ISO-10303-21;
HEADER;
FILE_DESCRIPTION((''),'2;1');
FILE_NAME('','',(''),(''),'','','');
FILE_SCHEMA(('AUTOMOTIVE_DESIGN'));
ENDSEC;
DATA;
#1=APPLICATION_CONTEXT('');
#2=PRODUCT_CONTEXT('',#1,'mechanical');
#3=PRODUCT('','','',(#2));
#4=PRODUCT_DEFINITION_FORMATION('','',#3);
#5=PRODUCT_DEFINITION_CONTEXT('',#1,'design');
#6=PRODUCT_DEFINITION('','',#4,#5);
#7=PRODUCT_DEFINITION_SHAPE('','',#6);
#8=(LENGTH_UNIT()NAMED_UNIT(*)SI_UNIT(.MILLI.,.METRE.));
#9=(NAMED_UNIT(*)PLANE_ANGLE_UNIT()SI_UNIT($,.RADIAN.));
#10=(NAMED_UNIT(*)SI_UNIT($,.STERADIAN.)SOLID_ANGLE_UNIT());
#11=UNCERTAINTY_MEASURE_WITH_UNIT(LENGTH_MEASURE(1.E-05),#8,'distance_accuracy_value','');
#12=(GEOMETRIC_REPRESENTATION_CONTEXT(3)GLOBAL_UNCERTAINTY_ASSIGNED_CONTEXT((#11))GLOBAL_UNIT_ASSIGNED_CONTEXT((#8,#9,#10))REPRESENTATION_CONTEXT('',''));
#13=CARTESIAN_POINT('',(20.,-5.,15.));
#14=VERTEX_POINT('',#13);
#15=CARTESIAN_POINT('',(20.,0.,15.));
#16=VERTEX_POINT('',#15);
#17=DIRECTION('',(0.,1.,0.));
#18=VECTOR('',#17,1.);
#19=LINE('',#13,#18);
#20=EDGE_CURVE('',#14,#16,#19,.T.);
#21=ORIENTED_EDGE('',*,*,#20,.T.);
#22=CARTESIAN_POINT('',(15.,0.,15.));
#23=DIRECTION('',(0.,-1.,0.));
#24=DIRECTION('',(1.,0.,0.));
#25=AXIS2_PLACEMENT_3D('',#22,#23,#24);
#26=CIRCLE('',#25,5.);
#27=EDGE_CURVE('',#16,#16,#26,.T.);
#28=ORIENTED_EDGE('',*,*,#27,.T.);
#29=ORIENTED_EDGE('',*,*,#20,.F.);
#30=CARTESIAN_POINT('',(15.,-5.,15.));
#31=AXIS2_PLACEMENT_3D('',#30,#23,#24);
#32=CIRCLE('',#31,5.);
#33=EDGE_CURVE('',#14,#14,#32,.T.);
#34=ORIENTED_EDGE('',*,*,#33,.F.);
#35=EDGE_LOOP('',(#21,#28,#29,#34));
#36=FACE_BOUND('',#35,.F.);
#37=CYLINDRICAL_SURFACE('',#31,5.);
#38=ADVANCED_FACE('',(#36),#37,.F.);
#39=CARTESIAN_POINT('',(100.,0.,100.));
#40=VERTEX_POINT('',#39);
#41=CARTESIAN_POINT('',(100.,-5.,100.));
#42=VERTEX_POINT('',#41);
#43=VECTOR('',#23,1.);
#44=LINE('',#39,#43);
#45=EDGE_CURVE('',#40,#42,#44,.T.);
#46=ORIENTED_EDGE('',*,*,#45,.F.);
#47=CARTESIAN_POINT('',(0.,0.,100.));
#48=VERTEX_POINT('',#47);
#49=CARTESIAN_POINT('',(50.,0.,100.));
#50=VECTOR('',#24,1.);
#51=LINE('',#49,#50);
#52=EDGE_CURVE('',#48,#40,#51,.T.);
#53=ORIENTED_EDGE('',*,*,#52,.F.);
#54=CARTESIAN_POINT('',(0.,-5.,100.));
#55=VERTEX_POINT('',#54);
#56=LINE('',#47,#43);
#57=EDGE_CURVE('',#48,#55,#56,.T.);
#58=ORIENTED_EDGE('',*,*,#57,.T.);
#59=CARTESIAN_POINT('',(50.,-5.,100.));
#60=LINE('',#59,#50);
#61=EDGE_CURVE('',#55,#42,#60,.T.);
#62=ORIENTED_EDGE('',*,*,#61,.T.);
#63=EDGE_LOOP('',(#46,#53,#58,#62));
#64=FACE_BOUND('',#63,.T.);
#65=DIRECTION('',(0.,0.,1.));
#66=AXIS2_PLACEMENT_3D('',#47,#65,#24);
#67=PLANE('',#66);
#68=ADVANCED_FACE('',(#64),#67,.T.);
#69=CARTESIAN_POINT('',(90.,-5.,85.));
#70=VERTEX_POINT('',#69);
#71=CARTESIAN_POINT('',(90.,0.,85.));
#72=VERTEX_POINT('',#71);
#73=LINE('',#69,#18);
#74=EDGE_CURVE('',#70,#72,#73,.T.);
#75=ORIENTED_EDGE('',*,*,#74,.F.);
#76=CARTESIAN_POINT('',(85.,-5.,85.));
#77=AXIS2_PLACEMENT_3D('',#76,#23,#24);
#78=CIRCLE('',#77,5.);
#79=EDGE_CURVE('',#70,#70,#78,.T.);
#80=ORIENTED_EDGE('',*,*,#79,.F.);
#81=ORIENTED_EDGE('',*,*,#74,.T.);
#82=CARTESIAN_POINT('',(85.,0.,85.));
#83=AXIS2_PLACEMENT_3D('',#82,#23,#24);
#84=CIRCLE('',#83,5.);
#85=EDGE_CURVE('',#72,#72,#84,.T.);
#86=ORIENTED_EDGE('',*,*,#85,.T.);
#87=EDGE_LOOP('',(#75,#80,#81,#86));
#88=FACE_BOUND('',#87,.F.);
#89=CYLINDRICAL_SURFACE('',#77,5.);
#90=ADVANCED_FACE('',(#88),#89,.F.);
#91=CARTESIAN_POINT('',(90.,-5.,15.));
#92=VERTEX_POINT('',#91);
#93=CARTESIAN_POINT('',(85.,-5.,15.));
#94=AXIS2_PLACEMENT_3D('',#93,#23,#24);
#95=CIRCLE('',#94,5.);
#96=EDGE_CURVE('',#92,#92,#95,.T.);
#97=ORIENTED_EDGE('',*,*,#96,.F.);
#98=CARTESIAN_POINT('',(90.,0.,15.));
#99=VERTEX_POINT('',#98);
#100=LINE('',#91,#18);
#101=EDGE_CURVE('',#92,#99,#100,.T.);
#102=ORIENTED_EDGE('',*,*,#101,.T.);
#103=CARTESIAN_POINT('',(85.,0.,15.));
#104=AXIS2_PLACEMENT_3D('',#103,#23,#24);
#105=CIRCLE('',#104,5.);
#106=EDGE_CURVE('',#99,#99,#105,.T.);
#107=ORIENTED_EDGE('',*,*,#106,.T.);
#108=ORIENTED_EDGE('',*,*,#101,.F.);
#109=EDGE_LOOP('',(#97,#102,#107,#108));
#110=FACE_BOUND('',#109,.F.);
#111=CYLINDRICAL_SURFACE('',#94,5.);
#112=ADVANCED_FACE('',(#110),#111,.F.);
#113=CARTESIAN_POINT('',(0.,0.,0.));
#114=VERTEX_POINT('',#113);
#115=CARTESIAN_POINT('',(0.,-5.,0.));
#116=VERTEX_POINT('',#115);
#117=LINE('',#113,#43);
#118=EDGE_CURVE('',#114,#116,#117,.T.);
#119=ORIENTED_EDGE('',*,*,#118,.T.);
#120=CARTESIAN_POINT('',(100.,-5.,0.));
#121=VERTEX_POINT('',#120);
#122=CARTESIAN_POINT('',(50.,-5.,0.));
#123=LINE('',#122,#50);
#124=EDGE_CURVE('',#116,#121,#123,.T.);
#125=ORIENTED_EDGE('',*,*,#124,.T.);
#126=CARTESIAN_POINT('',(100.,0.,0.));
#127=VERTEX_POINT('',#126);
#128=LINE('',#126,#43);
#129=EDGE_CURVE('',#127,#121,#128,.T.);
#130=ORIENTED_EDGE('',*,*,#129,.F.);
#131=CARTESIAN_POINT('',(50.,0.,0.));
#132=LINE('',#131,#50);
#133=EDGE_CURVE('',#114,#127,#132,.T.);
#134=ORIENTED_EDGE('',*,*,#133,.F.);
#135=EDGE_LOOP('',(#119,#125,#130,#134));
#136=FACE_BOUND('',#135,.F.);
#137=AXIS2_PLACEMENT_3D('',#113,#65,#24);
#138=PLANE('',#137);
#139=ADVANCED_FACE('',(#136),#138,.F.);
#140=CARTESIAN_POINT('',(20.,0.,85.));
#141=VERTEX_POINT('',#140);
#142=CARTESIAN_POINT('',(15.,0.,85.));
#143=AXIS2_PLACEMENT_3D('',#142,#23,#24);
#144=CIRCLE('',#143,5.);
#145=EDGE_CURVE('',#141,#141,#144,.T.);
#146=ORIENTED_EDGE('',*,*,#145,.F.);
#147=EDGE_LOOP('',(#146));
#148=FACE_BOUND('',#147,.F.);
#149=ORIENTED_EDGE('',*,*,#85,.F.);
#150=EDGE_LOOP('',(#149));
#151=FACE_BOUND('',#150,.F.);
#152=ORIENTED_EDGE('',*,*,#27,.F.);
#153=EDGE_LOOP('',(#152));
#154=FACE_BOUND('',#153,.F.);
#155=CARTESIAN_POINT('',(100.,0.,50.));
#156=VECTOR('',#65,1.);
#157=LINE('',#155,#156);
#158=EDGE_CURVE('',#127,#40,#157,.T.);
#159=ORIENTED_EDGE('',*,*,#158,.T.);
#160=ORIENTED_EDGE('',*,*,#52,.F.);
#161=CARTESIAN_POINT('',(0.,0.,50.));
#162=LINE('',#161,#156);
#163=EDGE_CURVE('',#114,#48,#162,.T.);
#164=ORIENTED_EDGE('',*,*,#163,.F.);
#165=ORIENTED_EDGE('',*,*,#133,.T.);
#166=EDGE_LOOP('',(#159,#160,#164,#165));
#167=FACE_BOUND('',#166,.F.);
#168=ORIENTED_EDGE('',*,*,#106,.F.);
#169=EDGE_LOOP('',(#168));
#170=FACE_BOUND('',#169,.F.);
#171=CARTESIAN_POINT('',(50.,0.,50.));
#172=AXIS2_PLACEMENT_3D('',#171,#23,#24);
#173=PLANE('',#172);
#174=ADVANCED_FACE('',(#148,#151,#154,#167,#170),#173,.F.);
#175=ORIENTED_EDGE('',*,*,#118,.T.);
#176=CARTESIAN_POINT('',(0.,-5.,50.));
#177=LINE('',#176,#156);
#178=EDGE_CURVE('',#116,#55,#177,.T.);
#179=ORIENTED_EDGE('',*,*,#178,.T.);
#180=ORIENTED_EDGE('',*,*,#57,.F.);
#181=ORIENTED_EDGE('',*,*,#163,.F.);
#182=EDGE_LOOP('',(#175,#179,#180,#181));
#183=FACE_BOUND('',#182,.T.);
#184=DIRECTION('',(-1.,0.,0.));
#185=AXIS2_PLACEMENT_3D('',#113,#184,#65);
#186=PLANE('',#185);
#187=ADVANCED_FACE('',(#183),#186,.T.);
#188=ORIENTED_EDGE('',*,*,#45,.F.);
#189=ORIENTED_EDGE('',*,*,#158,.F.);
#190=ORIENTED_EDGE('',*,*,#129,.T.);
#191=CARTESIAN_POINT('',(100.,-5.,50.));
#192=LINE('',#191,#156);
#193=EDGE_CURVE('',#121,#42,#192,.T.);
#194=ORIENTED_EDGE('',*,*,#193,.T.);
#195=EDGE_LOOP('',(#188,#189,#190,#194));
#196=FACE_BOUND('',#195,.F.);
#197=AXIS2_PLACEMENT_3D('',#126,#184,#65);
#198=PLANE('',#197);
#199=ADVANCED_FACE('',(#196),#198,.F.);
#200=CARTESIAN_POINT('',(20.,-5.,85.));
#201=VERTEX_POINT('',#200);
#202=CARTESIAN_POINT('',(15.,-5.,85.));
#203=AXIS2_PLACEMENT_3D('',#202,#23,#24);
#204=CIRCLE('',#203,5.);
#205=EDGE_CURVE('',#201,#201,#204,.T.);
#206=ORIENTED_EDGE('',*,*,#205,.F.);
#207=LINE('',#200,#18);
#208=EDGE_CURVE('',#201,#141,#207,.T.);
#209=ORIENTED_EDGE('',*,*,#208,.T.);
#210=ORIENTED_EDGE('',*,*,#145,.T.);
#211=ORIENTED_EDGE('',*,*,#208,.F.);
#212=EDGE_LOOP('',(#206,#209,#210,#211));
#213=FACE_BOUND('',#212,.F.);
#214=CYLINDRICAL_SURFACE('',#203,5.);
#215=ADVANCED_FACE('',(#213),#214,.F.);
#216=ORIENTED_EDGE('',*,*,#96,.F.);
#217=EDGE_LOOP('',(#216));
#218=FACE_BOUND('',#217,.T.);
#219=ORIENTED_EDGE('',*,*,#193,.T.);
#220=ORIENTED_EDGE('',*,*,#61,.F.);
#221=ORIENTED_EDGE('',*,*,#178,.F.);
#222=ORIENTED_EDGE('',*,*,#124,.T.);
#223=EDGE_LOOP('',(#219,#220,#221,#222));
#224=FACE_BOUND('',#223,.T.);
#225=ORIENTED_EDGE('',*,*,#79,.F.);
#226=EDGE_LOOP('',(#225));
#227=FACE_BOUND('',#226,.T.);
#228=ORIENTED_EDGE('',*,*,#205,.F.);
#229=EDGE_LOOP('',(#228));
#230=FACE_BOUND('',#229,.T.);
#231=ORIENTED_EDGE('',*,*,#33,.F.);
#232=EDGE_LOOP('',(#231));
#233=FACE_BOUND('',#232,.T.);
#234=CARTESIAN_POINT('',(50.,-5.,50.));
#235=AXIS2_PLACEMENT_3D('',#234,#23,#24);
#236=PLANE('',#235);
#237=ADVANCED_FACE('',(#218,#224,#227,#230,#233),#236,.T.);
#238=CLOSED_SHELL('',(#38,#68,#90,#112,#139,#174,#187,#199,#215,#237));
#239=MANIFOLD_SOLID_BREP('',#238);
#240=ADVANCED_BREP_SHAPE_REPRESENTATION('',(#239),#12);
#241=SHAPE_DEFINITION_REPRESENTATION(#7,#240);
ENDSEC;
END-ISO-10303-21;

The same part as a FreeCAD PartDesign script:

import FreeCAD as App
import Part
import Sketcher

V = App.Vector
Q = App.Units.Quantity

doc = App.newDocument("Part")
params = doc.addObject("Spreadsheet::Sheet", "Params")
for row, (alias, value) in enumerate([
    ("sketch1_width", "100 mm"),
    ("pad1_length", "5 mm"),
    ("sketch2_diameter", "10 mm"),
], start=1):
    params.set(f"A{row}", alias)
    params.set(f"B{row}", "=" + value)
    params.setAlias(f"B{row}", alias)

body = doc.addObject("PartDesign::Body", "Body")

# Sketch on XZ plane
sketch1 = body.newObject("Sketcher::SketchObject", "Sketch")
sketch1.AttachmentSupport = (doc.getObject("XZ_Plane"), [""])
sketch1.MapMode = "FlatFace"
sketch1.addGeometry(Part.LineSegment(V(0, 100, 0), V(0, 0, 0)), False)
sketch1.addGeometry(Part.LineSegment(V(0, 0, 0), V(100, 0, 0)), False)
sketch1.addGeometry(Part.LineSegment(V(100, 0, 0), V(100, 100, 0)), False)
sketch1.addGeometry(Part.LineSegment(V(100, 100, 0), V(0, 100, 0)), False)
sketch1.addConstraint(Sketcher.Constraint("Coincident", 0, 2, 1, 1))
sketch1.addConstraint(Sketcher.Constraint("Coincident", 1, 2, 2, 1))
sketch1.addConstraint(Sketcher.Constraint("Coincident", 2, 2, 3, 1))
sketch1.addConstraint(Sketcher.Constraint("Coincident", 3, 2, 0, 1))
sketch1.addConstraint(Sketcher.Constraint("Vertical", 0))
sketch1.addConstraint(Sketcher.Constraint("Horizontal", 1))
sketch1.addConstraint(Sketcher.Constraint("Vertical", 2))
sketch1.addConstraint(Sketcher.Constraint("Horizontal", 3))
sketch1.addConstraint(Sketcher.Constraint("Coincident", 0, 2, -1, 1))
sketch1.addConstraint(Sketcher.Constraint("Equal", 3, 0))
sketch1.addConstraint(Sketcher.Constraint("DistanceX", 1, 1, 1, 2, Q("100 mm")))
sketch1.setExpression("Constraints[10]", "Params.sketch1_width")
pad1 = body.newObject("PartDesign::Pad", "Pad")
pad1.Profile = sketch1
pad1.setExpression("Length", "Params.pad1_length")

# Sketch on XZ plane
sketch2 = body.newObject("Sketcher::SketchObject", "Sketch001")
sketch2.AttachmentSupport = (doc.getObject("XZ_Plane"), [""])
sketch2.MapMode = "FlatFace"
sketch2.AttachmentOffset = App.Placement(V(0, 0, 5), App.Rotation())
sketch2.addGeometry(Part.Circle(V(15, 85, 0), V(0, 0, 1), 5), False)
sketch2.addGeometry(Part.Circle(V(85, 85, 0), V(0, 0, 1), 5), False)
sketch2.addGeometry(Part.Circle(V(15, 15, 0), V(0, 0, 1), 5), False)
sketch2.addGeometry(Part.Circle(V(85, 15, 0), V(0, 0, 1), 5), False)
sketch2.addConstraint(Sketcher.Constraint("Equal", 0, 1))
sketch2.addConstraint(Sketcher.Constraint("Equal", 1, 2))
sketch2.addConstraint(Sketcher.Constraint("Equal", 2, 3))
sketch2.addConstraint(Sketcher.Constraint("Horizontal", 0, 3, 1, 3))
sketch2.addConstraint(Sketcher.Constraint("Horizontal", 2, 3, 3, 3))
sketch2.addConstraint(Sketcher.Constraint("Vertical", 0, 3, 2, 3))
sketch2.addConstraint(Sketcher.Constraint("Vertical", 1, 3, 3, 3))
sketch2.addConstraint(Sketcher.Constraint("Diameter", 0, Q("10 mm")))
sketch2.addConstraint(Sketcher.Constraint("DistanceX", -1, 1, 0, 3, Q("15 mm")))
sketch2.addConstraint(Sketcher.Constraint("DistanceY", -1, 1, 0, 3, Q("85 mm")))
sketch2.addConstraint(Sketcher.Constraint("DistanceX", -1, 1, 1, 3, Q("85 mm")))
sketch2.addConstraint(Sketcher.Constraint("DistanceY", -1, 1, 2, 3, Q("15 mm")))
sketch2.setExpression("Constraints[7]", "Params.sketch2_diameter")
pocket1 = body.newObject("PartDesign::Pocket", "Pocket")
pocket1.Profile = sketch2
pocket1.Type = "ThroughAll"

doc.recompute()
